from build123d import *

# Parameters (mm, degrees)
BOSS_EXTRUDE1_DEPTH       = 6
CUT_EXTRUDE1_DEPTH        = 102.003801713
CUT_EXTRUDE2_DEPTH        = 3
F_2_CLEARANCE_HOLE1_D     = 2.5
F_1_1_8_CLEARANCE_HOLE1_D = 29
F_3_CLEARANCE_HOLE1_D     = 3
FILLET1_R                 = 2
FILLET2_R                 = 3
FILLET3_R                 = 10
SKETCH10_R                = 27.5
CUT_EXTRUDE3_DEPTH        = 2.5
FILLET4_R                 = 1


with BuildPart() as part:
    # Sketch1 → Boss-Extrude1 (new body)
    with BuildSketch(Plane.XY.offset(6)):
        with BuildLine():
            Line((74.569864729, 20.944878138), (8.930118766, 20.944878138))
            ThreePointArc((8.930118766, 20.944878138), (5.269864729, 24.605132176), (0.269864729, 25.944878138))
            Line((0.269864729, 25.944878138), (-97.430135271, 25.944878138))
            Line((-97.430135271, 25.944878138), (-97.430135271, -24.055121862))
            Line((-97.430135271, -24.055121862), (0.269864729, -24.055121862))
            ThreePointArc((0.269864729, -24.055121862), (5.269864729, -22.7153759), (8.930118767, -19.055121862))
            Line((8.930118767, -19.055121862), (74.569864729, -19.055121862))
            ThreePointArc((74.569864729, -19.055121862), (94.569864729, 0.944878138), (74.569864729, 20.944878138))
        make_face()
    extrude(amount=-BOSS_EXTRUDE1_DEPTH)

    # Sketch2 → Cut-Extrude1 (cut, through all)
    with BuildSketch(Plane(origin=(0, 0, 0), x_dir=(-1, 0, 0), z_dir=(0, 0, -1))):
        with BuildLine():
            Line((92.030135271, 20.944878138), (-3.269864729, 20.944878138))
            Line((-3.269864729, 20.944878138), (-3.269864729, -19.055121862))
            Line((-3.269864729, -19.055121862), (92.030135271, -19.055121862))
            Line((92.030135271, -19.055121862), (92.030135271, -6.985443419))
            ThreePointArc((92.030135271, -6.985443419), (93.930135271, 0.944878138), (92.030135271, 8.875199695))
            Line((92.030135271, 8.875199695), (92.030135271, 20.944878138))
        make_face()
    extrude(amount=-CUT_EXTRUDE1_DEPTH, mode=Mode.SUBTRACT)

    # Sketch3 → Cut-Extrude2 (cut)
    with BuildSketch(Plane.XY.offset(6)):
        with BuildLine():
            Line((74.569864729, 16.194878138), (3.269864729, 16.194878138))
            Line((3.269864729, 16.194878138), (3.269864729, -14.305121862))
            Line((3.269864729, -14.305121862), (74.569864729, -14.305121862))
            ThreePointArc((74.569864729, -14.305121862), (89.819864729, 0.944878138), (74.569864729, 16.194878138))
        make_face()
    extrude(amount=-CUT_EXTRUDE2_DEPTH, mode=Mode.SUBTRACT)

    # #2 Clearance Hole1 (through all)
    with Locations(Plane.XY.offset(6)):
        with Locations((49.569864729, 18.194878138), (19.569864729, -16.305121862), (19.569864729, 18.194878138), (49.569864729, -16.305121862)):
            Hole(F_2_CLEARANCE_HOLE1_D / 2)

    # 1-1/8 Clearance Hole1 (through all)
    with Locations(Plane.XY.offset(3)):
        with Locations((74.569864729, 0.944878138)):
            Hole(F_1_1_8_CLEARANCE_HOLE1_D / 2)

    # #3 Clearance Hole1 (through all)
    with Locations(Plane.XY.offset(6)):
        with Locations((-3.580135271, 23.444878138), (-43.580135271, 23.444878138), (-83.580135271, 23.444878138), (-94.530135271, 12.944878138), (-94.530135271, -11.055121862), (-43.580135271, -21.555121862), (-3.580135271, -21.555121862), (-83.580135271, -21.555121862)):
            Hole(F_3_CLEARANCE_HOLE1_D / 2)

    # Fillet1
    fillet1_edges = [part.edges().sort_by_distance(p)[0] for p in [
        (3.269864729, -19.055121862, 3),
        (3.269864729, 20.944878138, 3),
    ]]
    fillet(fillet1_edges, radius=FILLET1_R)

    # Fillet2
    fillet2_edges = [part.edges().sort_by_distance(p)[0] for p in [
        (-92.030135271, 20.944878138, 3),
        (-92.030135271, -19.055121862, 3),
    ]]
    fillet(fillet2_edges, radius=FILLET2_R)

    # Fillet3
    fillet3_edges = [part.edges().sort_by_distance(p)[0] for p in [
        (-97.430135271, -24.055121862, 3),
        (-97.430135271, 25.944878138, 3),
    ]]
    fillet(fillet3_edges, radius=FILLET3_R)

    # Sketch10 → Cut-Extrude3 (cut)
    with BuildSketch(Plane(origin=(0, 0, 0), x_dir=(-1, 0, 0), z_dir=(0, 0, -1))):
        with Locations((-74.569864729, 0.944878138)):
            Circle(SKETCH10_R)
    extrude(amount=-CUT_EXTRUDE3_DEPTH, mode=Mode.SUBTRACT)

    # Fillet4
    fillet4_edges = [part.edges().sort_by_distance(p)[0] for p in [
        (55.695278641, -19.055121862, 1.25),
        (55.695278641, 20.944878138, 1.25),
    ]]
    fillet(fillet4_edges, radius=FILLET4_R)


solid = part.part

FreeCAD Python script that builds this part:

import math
import FreeCAD as App
import Part
import Sketcher
from FreeCAD import Vector


def edges_at(feature, points):
    """Names of the edges that pass closest to the given points."""
    edges = feature.Shape.Edges
    near = lambda p: min(range(len(edges)), key=lambda i: edges[i].distToShape(Part.Vertex(*p))[0])
    return sorted({f"Edge{near(p) + 1}" for p in points})

doc = App.newDocument("Part")
params = doc.addObject("Spreadsheet::Sheet", "Params")
for row, (alias, value) in enumerate([
    ("sketch1_radius", "10 mm"),
    ("sketch1_radius2", "20 mm"),
    ("sketch1_height", "50 mm"),
    ("sketch1_width", "97.7 mm"),
    ("pad1_length", "6 mm"),
    ("sketch2_radius", "17.5 mm"),
    ("sketch2_height", "40 mm"),
    ("sketch2_width", "95.3 mm"),
    ("sketch3_radius", "15.25 mm"),
    ("sketch3_width", "71.3 mm"),
    ("pocket2_length", "3 mm"),
    ("sketch4_diameter", "2.5 mm"),
    ("hole_diameter", "2.5 mm"),
    ("sketch5_diameter", "29 mm"),
    ("hole2_diameter", "29 mm"),
    ("sketch6_diameter", "3 mm"),
    ("hole3_diameter", "3 mm"),
    ("fillet_radius", "2 mm"),
    ("fillet2_radius", "3 mm"),
    ("fillet3_radius", "10 mm"),
    ("sketch7_diameter", "55 mm"),
    ("pocket3_length", "2.5 mm"),
    ("fillet4_radius", "1 mm"),
], start=1):
    params.set(f"A{row}", alias)
    params.set(f"B{row}", "=" + value)
    params.setAlias(f"B{row}", alias)

body = doc.addObject("PartDesign::Body", "Body")

# Sketch on XY plane
sketch1 = doc.addObject("Sketcher::SketchObject", "Sketch")
body.addObject(sketch1)
sketch1.AttachmentSupport = (doc.XY_Plane, [""])
sketch1.MapMode = "FlatFace"
sketch1.AttachmentOffset = App.Placement(Vector(0, 0, 6), App.Rotation())
sketch1.addGeometry([
    Part.LineSegment(Vector(74.569865, 20.944878, 0), Vector(8.930119, 20.944878, 0)),  # 0
    Part.ArcOfCircle(Part.Circle(Vector(0.269865, 15.944878, 0), Vector(0, 0, 1), 10), math.radians(30), math.radians(90)),  # 1
    Part.LineSegment(Vector(0.269865, 25.944878, 0), Vector(-97.430135, 25.944878, 0)),  # 2
    Part.LineSegment(Vector(-97.430135, 25.944878, 0), Vector(-97.430135, -24.055122, 0)),  # 3
    Part.LineSegment(Vector(-97.430135, -24.055122, 0), Vector(0.269865, -24.055122, 0)),  # 4
    Part.ArcOfCircle(Part.Circle(Vector(0.269865, -14.055122, 0), Vector(0, 0, 1), 10), math.radians(-90), math.radians(-30)),  # 5
    Part.LineSegment(Vector(8.930119, -19.055122, 0), Vector(74.569865, -19.055122, 0)),  # 6
    Part.ArcOfCircle(Part.Circle(Vector(74.569865, 0.944878, 0), Vector(0, 0, 1), 20), math.radians(-90), math.radians(90)),  # 7
], False)
sketch1.addConstraint([
    Sketcher.Constraint("Coincident", 0, 2, 1, 1),
    Sketcher.Constraint("Tangent", 1, 2, 2, 1),
    Sketcher.Constraint("Coincident", 2, 2, 3, 1),
    Sketcher.Constraint("Coincident", 3, 2, 4, 1),
    Sketcher.Constraint("Tangent", 4, 2, 5, 1),
    Sketcher.Constraint("Coincident", 5, 2, 6, 1),
    Sketcher.Constraint("Tangent", 6, 2, 7, 1),
    Sketcher.Constraint("Tangent", 7, 2, 0, 1),
    Sketcher.Constraint("Horizontal", 0),
    Sketcher.Constraint("Horizontal", 2),
    Sketcher.Constraint("Vertical", 3),
    Sketcher.Constraint("Horizontal", 4),
    Sketcher.Constraint("Horizontal", 6),
    Sketcher.Constraint("Equal", 1, 5),
    Sketcher.Constraint("Vertical", 1, 3, 5, 3),
    Sketcher.Constraint("Vertical", 0, 2, 5, 2),
    Sketcher.Constraint("Radius", 1, 10.0),
    Sketcher.Constraint("Radius", 7, 20.0),
    Sketcher.Constraint("DistanceY", 3, 2, 3, 1, 50.0),
    Sketcher.Constraint("DistanceX", 2, 2, 2, 1, 97.7),
    Sketcher.Constraint("DistanceX", 2, 2, 7, 3, 172.0),
    Sketcher.Constraint("DistanceY", -1, 1, 1, 3, 15.944878),
    Sketcher.Constraint("DistanceX", -1, 1, 0, 2, 8.930119),
])
sketch1.setExpression("Constraints[16]", "Params.sketch1_radius")
sketch1.setExpression("Constraints[17]", "Params.sketch1_radius2")
sketch1.setExpression("Constraints[18]", "Params.sketch1_height")
sketch1.setExpression("Constraints[19]", "Params.sketch1_width")
pad1 = doc.addObject("PartDesign::Pad", "Pad")
body.addObject(pad1)
pad1.Profile = sketch1
pad1.setExpression("Length", "Params.pad1_length")
pad1.Reversed = True

# Sketch on XY plane
sketch2 = doc.addObject("Sketcher::SketchObject", "Sketch001")
body.addObject(sketch2)
sketch2.AttachmentSupport = (doc.XY_Plane, [""])
sketch2.MapMode = "FlatFace"
sketch2.addGeometry([
    Part.LineSegment(Vector(-92.030135, 20.944878, 0), Vector(3.269865, 20.944878, 0)),  # 0
    Part.LineSegment(Vector(3.269865, 20.944878, 0), Vector(3.269865, -19.055122, 0)),  # 1
    Part.LineSegment(Vector(3.269865, -19.055122, 0), Vector(-92.030135, -19.055122, 0)),  # 2
    Part.LineSegment(Vector(-92.030135, -19.055122, 0), Vector(-92.030135, -6.985443, 0)),  # 3
    Part.ArcOfCircle(Part.Circle(Vector(-76.430135, 0.944878, 0), Vector(0, 0, 1), 17.5), math.radians(153.053313), math.radians(206.946687)),  # 4
    Part.LineSegment(Vector(-92.030135, 8.8752, 0), Vector(-92.030135, 20.944878, 0)),  # 5
], False)
sketch2.addConstraint([
    Sketcher.Constraint("Coincident", 0, 2, 1, 1),
    Sketcher.Constraint("Coincident", 1, 2, 2, 1),
    Sketcher.Constraint("Coincident", 2, 2, 3, 1),
    Sketcher.Constraint("Coincident", 3, 2, 4, 2),
    Sketcher.Constraint("Coincident", 4, 1, 5, 1),
    Sketcher.Constraint("Coincident", 5, 2, 0, 1),
    Sketcher.Constraint("Horizontal", 0),
    Sketcher.Constraint("Vertical", 1),
    Sketcher.Constraint("Horizontal", 2),
    Sketcher.Constraint("Vertical", 3),
    Sketcher.Constraint("Vertical", 5),
    Sketcher.Constraint("Vertical", 3, 2, 4, 1),
    Sketcher.Constraint("Equal", 3, 5),
    Sketcher.Constraint("Radius", 4, 17.5),
    Sketcher.Constraint("DistanceY", 1, 2, 1, 1, 40.0),
    Sketcher.Constraint("DistanceX", 0, 1, 0, 2, 95.3),
    Sketcher.Constraint("DistanceX", 4, 3, 0, 2, 79.7),
    Sketcher.Constraint("DistanceY", -1, 1, 4, 1, 8.8752),
    Sketcher.Constraint("DistanceX", 4, 3, -1, 1, 76.430135),
])
sketch2.setExpression("Constraints[13]", "Params.sketch2_radius")
sketch2.setExpression("Constraints[14]", "Params.sketch2_height")
sketch2.setExpression("Constraints[15]", "Params.sketch2_width")
pocket1 = doc.addObject("PartDesign::Pocket", "Pocket")
body.addObject(pocket1)
pocket1.Profile = sketch2
pocket1.Type = "ThroughAll"
pocket1.Reversed = True

# Sketch on XY plane
sketch3 = doc.addObject("Sketcher::SketchObject", "Sketch002")
body.addObject(sketch3)
sketch3.AttachmentSupport = (doc.XY_Plane, [""])
sketch3.MapMode = "FlatFace"
sketch3.AttachmentOffset = App.Placement(Vector(0, 0, 6), App.Rotation())
sketch3.addGeometry([
    Part.LineSegment(Vector(74.569865, 16.194878, 0), Vector(3.269865, 16.194878, 0)),
    Part.LineSegment(Vector(3.269865, 16.194878, 0), Vector(3.269865, -14.305122, 0)),
    Part.LineSegment(Vector(3.269865, -14.305122, 0), Vector(74.569865, -14.305122, 0)),
    Part.ArcOfCircle(Part.Circle(Vector(74.569865, 0.944878, 0), Vector(0, 0, 1), 15.25), math.radians(-90), math.radians(90)),
], False)
sketch3.addConstraint([
    Sketcher.Constraint("Coincident", 0, 2, 1, 1),
    Sketcher.Constraint("Coincident", 1, 2, 2, 1),
    Sketcher.Constraint("Tangent", 2, 2, 3, 1),
    Sketcher.Constraint("Tangent", 3, 2, 0, 1),
    Sketcher.Constraint("Horizontal", 0),
    Sketcher.Constraint("Vertical", 1),
    Sketcher.Constraint("Horizontal", 2),
    Sketcher.Constraint("Radius", 3, 15.25),
    Sketcher.Constraint("DistanceX", 0, 2, 0, 1, 71.3),
    Sketcher.Constraint("DistanceY", -1, 1, 3, 3, 0.944878),
    Sketcher.Constraint("DistanceX", -1, 1, 3, 3, 74.569865),
])
sketch3.setExpression("Constraints[7]", "Params.sketch3_radius")
sketch3.setExpression("Constraints[8]", "Params.sketch3_width")
pocket2 = doc.addObject("PartDesign::Pocket", "Pocket001")
body.addObject(pocket2)
pocket2.Profile = sketch3
pocket2.setExpression("Length", "Params.pocket2_length")

# Sketch on XY plane
sketch4 = doc.addObject("Sketcher::SketchObject", "Sketch003")
body.addObject(sketch4)
sketch4.AttachmentSupport = (doc.XY_Plane, [""])
sketch4.MapMode = "FlatFace"
sketch4.AttachmentOffset = App.Placement(Vector(0, 0, 6), App.Rotation())
sketch4.addGeometry([
    Part.Circle(Vector(49.569865, 18.194878, 0), Vector(0, 0, 1), 1.25),
    Part.Circle(Vector(19.569865, -16.305122, 0), Vector(0, 0, 1), 1.25),
    Part.Circle(Vector(19.569865, 18.194878, 0), Vector(0, 0, 1), 1.25),
    Part.Circle(Vector(49.569865, -16.305122, 0), Vector(0, 0, 1), 1.25),
], False)
sketch4.addConstraint([
    Sketcher.Constraint("Equal", 0, 1),
    Sketcher.Constraint("Equal", 1, 2),
    Sketcher.Constraint("Equal", 2, 3),
    Sketcher.Constraint("Horizontal", 0, 3, 2, 3),
    Sketcher.Constraint("Horizontal", 1, 3, 3, 3),
    Sketcher.Constraint("Vertical", 1, 3, 2, 3),
    Sketcher.Constraint("Vertical", 0, 3, 3, 3),
    Sketcher.Constraint("Diameter", 0, 2.5),
    Sketcher.Constraint("DistanceX", 1, 3, 0, 3, 30.0),
    Sketcher.Constraint("DistanceY", 1, 3, 0, 3, 34.5),
    Sketcher.Constraint("DistanceY", -1, 1, 0, 3, 18.194878),
    Sketcher.Constraint("DistanceX", -1, 1, 0, 3, 49.569865),
])
sketch4.setExpression("Constraints[7]", "Params.sketch4_diameter")
doc.recompute()
hole = doc.addObject("PartDesign::Hole", "Hole")
body.addObject(hole)
hole.Profile = sketch4
hole.ThreadType = "None"
hole.setExpression("Diameter", "Params.hole_diameter")
hole.DepthType = "ThroughAll"

# Sketch on XY plane
sketch5 = doc.addObject("Sketcher::SketchObject", "Sketch004")
body.addObject(sketch5)
sketch5.AttachmentSupport = (doc.XY_Plane, [""])
sketch5.MapMode = "FlatFace"
sketch5.AttachmentOffset = App.Placement(Vector(0, 0, 3), App.Rotation())
sketch5.addGeometry(Part.Circle(Vector(74.569865, 0.944878, 0), Vector(0, 0, 1), 14.5), False)
sketch5.addConstraint([
    Sketcher.Constraint("Diameter", 0, 29.0),
    Sketcher.Constraint("DistanceY", -1, 1, 0, 3, 0.944878),
    Sketcher.Constraint("DistanceX", -1, 1, 0, 3, 74.569865),
])
sketch5.setExpression("Constraints[0]", "Params.sketch5_diameter")
doc.recompute()
hole2 = doc.addObject("PartDesign::Hole", "Hole001")
body.addObject(hole2)
hole2.Profile = sketch5
hole2.ThreadType = "None"
hole2.setExpression("Diameter", "Params.hole2_diameter")
hole2.DepthType = "ThroughAll"

# Sketch on XY plane
sketch6 = doc.addObject("Sketcher::SketchObject", "Sketch005")
body.addObject(sketch6)
sketch6.AttachmentSupport = (doc.XY_Plane, [""])
sketch6.MapMode = "FlatFace"
sketch6.AttachmentOffset = App.Placement(Vector(0, 0, 6), App.Rotation())
sketch6.addGeometry([
    Part.Circle(Vector(-3.580135, 23.444878, 0), Vector(0, 0, 1), 1.5),  # 0
    Part.Circle(Vector(-43.580135, 23.444878, 0), Vector(0, 0, 1), 1.5),  # 1
    Part.Circle(Vector(-83.580135, 23.444878, 0), Vector(0, 0, 1), 1.5),  # 2
    Part.Circle(Vector(-94.530135, 12.944878, 0), Vector(0, 0, 1), 1.5),  # 3
    Part.Circle(Vector(-94.530135, -11.055122, 0), Vector(0, 0, 1), 1.5),  # 4
    Part.Circle(Vector(-43.580135, -21.555122, 0), Vector(0, 0, 1), 1.5),  # 5
    Part.Circle(Vector(-3.580135, -21.555122, 0), Vector(0, 0, 1), 1.5),  # 6
    Part.Circle(Vector(-83.580135, -21.555122, 0), Vector(0, 0, 1), 1.5),  # 7
], False)
sketch6.addConstraint([
    Sketcher.Constraint("Equal", 0, 1),
    Sketcher.Constraint("Equal", 1, 2),
    Sketcher.Constraint("Equal", 2, 3),
    Sketcher.Constraint("Equal", 3, 4),
    Sketcher.Constraint("Equal", 4, 5),
    Sketcher.Constraint("Equal", 5, 6),
    Sketcher.Constraint("Equal", 6, 7),
    Sketcher.Constraint("Horizontal", 0, 3, 1, 3),
    Sketcher.Constraint("Horizontal", 1, 3, 2, 3),
    Sketcher.Constraint("Horizontal", 5, 3, 6, 3),
    Sketcher.Constraint("Horizontal", 6, 3, 7, 3),
    Sketcher.Constraint("Vertical", 3, 3, 4, 3),
    Sketcher.Constraint("Vertical", 1, 3, 5, 3),
    Sketcher.Constraint("Vertical", 0, 3, 6, 3),
    Sketcher.Constraint("Vertical", 2, 3, 7, 3),
    Sketcher.Constraint("Diameter", 0, 3.0),
    Sketcher.Constraint("DistanceX", 1, 3, 0, 3, 40.0),
    Sketcher.Constraint("DistanceX", 2, 3, 1, 3, 40.0),
    Sketcher.Constraint("DistanceY", 4, 3, 3, 3, 24.0),
    Sketcher.Constraint("DistanceY", 5, 3, 1, 3, 45.0),
    Sketcher.Constraint("DistanceY", 3, 3, 2, 3, 10.5),
    Sketcher.Constraint("DistanceX", 3, 3, 2, 3, 10.95),
    Sketcher.Constraint("DistanceY", -1, 1, 0, 3, 23.444878),
    Sketcher.Constraint("DistanceX", 0, 3, -1, 1, 3.580135),
])
sketch6.setExpression("Constraints[15]", "Params.sketch6_diameter")
doc.recompute()
hole3 = doc.addObject("PartDesign::Hole", "Hole002")
body.addObject(hole3)
hole3.Profile = sketch6
hole3.ThreadType = "None"
hole3.setExpression("Diameter", "Params.hole3_diameter")
hole3.DepthType = "ThroughAll"
doc.recompute()

fillet = doc.addObject("PartDesign::Fillet", "Fillet")
body.addObject(fillet)
fillet.Base = (hole3, edges_at(hole3, [(3.27, -19.055, 3), (3.27, 20.945, 3)]))
fillet.setExpression("Radius", "Params.fillet_radius")
doc.recompute()

fillet2 = doc.addObject("PartDesign::Fillet", "Fillet001")
body.addObject(fillet2)
fillet2.Base = (fillet, edges_at(fillet, [(-92.03, 20.945, 3), (-92.03, -19.055, 3)]))
fillet2.setExpression("Radius", "Params.fillet2_radius")
doc.recompute()

fillet3 = doc.addObject("PartDesign::Fillet", "Fillet002")
body.addObject(fillet3)
fillet3.Base = (fillet2, edges_at(fillet2, [(-97.43, -24.055, 3), (-97.43, 25.945, 3)]))
fillet3.setExpression("Radius", "Params.fillet3_radius")

# Sketch on XY plane
sketch7 = doc.addObject("Sketcher::SketchObject", "Sketch006")
body.addObject(sketch7)
sketch7.AttachmentSupport = (doc.XY_Plane, [""])
sketch7.MapMode = "FlatFace"
sketch7.addGeometry(Part.Circle(Vector(74.569865, 0.944878, 0), Vector(0, 0, 1), 27.5), False)
sketch7.addConstraint([
    Sketcher.Constraint("Diameter", 0, 55.0),
    Sketcher.Constraint("DistanceY", -1, 1, 0, 3, 0.944878),
    Sketcher.Constraint("DistanceX", -1, 1, 0, 3, 74.569865),
])
sketch7.setExpression("Constraints[0]", "Params.sketch7_diameter")
pocket3 = doc.addObject("PartDesign::Pocket", "Pocket002")
body.addObject(pocket3)
pocket3.Profile = sketch7
pocket3.setExpression("Length", "Params.pocket3_length")
pocket3.Reversed = True
doc.recompute()

fillet4 = doc.addObject("PartDesign::Fillet", "Fillet003")
body.addObject(fillet4)
fillet4.Base = (pocket3, edges_at(pocket3, [(55.695, -19.055, 1.25), (55.695, 20.945, 1.25)]))
fillet4.setExpression("Radius", "Params.fillet4_radius")

doc.recompute()
